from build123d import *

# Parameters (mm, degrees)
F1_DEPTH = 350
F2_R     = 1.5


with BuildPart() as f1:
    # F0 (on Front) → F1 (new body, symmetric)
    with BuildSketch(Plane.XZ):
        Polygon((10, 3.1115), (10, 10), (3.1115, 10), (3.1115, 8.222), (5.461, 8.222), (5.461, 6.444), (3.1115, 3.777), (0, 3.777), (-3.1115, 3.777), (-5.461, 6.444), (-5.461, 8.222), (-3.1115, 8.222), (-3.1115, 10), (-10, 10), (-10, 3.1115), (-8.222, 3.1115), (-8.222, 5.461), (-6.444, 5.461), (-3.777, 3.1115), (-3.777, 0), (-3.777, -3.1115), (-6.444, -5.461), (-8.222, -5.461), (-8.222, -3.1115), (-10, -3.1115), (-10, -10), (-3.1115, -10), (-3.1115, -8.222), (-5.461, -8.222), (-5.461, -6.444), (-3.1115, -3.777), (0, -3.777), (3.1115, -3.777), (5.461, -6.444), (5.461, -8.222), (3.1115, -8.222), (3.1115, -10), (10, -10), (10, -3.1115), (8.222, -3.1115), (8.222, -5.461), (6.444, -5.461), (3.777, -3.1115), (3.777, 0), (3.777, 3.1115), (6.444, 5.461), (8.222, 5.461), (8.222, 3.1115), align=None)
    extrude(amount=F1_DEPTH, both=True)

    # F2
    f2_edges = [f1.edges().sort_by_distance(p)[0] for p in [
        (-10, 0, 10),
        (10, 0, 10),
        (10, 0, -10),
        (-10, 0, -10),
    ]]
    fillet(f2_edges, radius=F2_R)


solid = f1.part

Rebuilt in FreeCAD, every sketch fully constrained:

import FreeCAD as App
import Part
import Sketcher
from FreeCAD import Vector


def edges_at(feature, points):
    """Names of the edges that pass closest to the given points."""
    edges = feature.Shape.Edges
    near = lambda p: min(range(len(edges)), key=lambda i: edges[i].distToShape(Part.Vertex(*p))[0])
    return sorted({f"Edge{near(p) + 1}" for p in points})


def add_polygon(sketch, points):
    """Adds a closed chain of lines whose ends are joined by coincident constraints."""
    first, n = sketch.GeometryCount, len(points)
    for a, b in zip(points, points[1:] + points[:1]):
        sketch.addGeometry(Part.LineSegment(App.Vector(*a, 0), App.Vector(*b, 0)), False)
    for i in range(n):
        sketch.addConstraint(Sketcher.Constraint("Coincident", first + i, 2, first + (i + 1) % n, 1))

doc = App.newDocument("Part")
params = doc.addObject("Spreadsheet::Sheet", "Params")
for row, (alias, value) in enumerate([
    ("pad1_length", "700 mm"),
    ("fillet_radius", "1.5 mm"),
], start=1):
    params.set(f"A{row}", alias)
    params.set(f"B{row}", "=" + value)
    params.setAlias(f"B{row}", alias)

body = doc.addObject("PartDesign::Body", "Body")

# Sketch on XZ plane
sketch1 = doc.addObject("Sketcher::SketchObject", "Sketch")
body.addObject(sketch1)
sketch1.AttachmentSupport = (doc.XZ_Plane, [""])
sketch1.MapMode = "FlatFace"
add_polygon(sketch1, [(10, 3.1), (10, 10), (3.1, 10), (3.1, 8.2), (5.5, 8.2), (5.5, 6.4), (3.1, 3.8), (-3.1, 3.8), (-5.5, 6.4), (-5.5, 8.2), (-3.1, 8.2), (-3.1, 10), (-10, 10), (-10, 3.1), (-8.2, 3.1), (-8.2, 5.5), (-6.4, 5.5), (-3.8, 3.1), (-3.8, -3.1), (-6.4, -5.5), (-8.2, -5.5), (-8.2, -3.1), (-10, -3.1), (-10, -10), (-3.1, -10), (-3.1, -8.2), (-5.5, -8.2), (-5.5, -6.4), (-3.1, -3.8), (3.1, -3.8), (5.5, -6.4), (5.5, -8.2), (3.1, -8.2), (3.1, -10), (10, -10), (10, -3.1), (8.2, -3.1), (8.2, -5.5), (6.4, -5.5), (3.8, -3.1), (3.8, 3.1), (6.4, 5.5), (8.2, 5.5), (8.2, 3.1)])  # lines 0-43
sketch1.addConstraint([
    Sketcher.Constraint("Vertical", 0),
    Sketcher.Constraint("Horizontal", 1),
    Sketcher.Constraint("Vertical", 2),
    Sketcher.Constraint("Horizontal", 3),
    Sketcher.Constraint("Vertical", 4),
    Sketcher.Constraint("Horizontal", 6),
    Sketcher.Constraint("Vertical", 8),
    Sketcher.Constraint("Horizontal", 9),
    Sketcher.Constraint("Vertical", 10),
    Sketcher.Constraint("Horizontal", 11),
    Sketcher.Constraint("Vertical", 12),
    Sketcher.Constraint("Horizontal", 13),
    Sketcher.Constraint("Vertical", 14),
    Sketcher.Constraint("Horizontal", 15),
    Sketcher.Constraint("Vertical", 17),
    Sketcher.Constraint("Horizontal", 19),
    Sketcher.Constraint("Vertical", 20),
    Sketcher.Constraint("Horizontal", 21),
    Sketcher.Constraint("Vertical", 22),
    Sketcher.Constraint("Horizontal", 23),
    Sketcher.Constraint("Vertical", 24),
    Sketcher.Constraint("Horizontal", 25),
    Sketcher.Constraint("Vertical", 26),
    Sketcher.Constraint("Horizontal", 28),
    Sketcher.Constraint("Vertical", 30),
    Sketcher.Constraint("Horizontal", 31),
    Sketcher.Constraint("Vertical", 32),
    Sketcher.Constraint("Horizontal", 33),
    Sketcher.Constraint("Vertical", 34),
    Sketcher.Constraint("Horizontal", 35),
    Sketcher.Constraint("Vertical", 36),
    Sketcher.Constraint("Horizontal", 37),
    Sketcher.Constraint("Vertical", 39),
    Sketcher.Constraint("Horizontal", 41),
    Sketcher.Constraint("Vertical", 42),
    Sketcher.Constraint("Horizontal", 43),
    Sketcher.Constraint("Symmetric", 0, 2, 22, 2, -1, 1),
    Sketcher.Constraint("Symmetric", 2, 2, 24, 2, -1, 1),
    Sketcher.Constraint("Symmetric", 4, 2, 26, 2, -1, 1),
    Sketcher.Constraint("Symmetric", 5, 2, 27, 2, -1, 1),
    Sketcher.Constraint("Symmetric", 7, 2, 29, 2, -1, 1),
    Sketcher.Constraint("Symmetric", 9, 2, 31, 2, -1, 1),
    Sketcher.Constraint("Symmetric", 11, 2, 33, 2, -1, 1),
    Sketcher.Constraint("Symmetric", 13, 2, 35, 2, -1, 1),
    Sketcher.Constraint("Symmetric", 15, 2, 37, 2, -1, 1),
    Sketcher.Constraint("Symmetric", 16, 2, 38, 2, -1, 1),
    Sketcher.Constraint("Symmetric", 18, 2, 40, 2, -1, 1),
    Sketcher.Constraint("Symmetric", 20, 2, 42, 2, -1, 1),
    Sketcher.Constraint("Symmetric", 4, 2, 7, 2, -2),
    Sketcher.Constraint("Symmetric", 2, 2, 9, 2, -2),
    Sketcher.Constraint("Symmetric", 0, 2, 11, 2, -2),
    Sketcher.Constraint("Symmetric", 20, 2, 35, 2, -2),
    Sketcher.Constraint("Symmetric", 18, 2, 37, 2, -2),
    Sketcher.Constraint("Perpendicular", 5, 16),
    Sketcher.Constraint("Perpendicular", 7, 18),
    Sketcher.Constraint("Perpendicular", 18, 29),
    Sketcher.Constraint("Perpendicular", 29, 40),
    Sketcher.Constraint("Horizontal", 13, 2, 16, 2),
    Sketcher.Constraint("Horizontal", 17, 2, 20, 2),
    Sketcher.Constraint("Vertical", 2, 2, 5, 2),
    Sketcher.Constraint("Equal", 13, 15),
    Sketcher.Constraint("Equal", 33, 0),
    Sketcher.Constraint("Equal", 43, 2),
    Sketcher.Constraint("Equal", 2, 4),
    Sketcher.Constraint("Equal", 31, 14),
    Sketcher.Constraint("Equal", 28, 17),
    Sketcher.Constraint("DistanceX", -1, 1, 0, 2, 10.0),
    Sketcher.Constraint("DistanceX", 6, 2, 6, 1, 6.223),
    Sketcher.Constraint("DistanceX", 13, 1, 13, 2, 1.778),
    Sketcher.Constraint("DistanceX", 3, 1, 3, 2, 2.3495),
    Sketcher.Constraint("DistanceY", -1, 1, 5, 2, 3.777),
])
pad1 = doc.addObject("PartDesign::Pad", "Pad")
body.addObject(pad1)
pad1.Profile = sketch1
pad1.setExpression("Length", "Params.pad1_length")
pad1.Midplane = True
doc.recompute()

fillet = doc.addObject("PartDesign::Fillet", "Fillet")
body.addObject(fillet)
fillet.Base = (pad1, edges_at(pad1, [
    (-10, 0, 10),
    (10, 0, 10),
    (10, 0, -10),
    (-10, 0, -10),
]))
fillet.setExpression("Radius", "Params.fillet_radius")

doc.recompute()
